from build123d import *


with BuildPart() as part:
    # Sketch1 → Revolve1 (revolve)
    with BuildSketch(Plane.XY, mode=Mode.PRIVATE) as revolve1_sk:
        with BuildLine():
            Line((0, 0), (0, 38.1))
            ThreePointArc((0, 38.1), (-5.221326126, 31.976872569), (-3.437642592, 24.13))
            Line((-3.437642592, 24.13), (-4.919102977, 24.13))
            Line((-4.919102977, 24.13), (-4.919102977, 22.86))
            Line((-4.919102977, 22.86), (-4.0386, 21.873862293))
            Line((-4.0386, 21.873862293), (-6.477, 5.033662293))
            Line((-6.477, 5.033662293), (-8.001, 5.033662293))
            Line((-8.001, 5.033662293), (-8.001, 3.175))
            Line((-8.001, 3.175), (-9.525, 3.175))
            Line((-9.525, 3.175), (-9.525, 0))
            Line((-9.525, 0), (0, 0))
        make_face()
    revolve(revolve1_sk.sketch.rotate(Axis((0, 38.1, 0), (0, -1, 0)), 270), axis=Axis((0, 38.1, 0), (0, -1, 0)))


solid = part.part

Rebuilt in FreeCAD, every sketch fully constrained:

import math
import FreeCAD as App
import Part
import Sketcher
from FreeCAD import Vector
Q = App.Units.Quantity

doc = App.newDocument("Part")
params = doc.addObject("Spreadsheet::Sheet", "Params")
for row, (alias, value) in enumerate([
    ("sketch1_height", "1.5 in"),
    ("sketch1_width", "0.06 in"),
    ("sketch1_height2", "0.05 in"),
    ("sketch1_width2", "0.375 in"),
    ("sketch1_height3", "0.125 in"),
    ("revolution_angle", "360 deg"),
], start=1):
    params.set(f"A{row}", alias)
    params.set(f"B{row}", "=" + value)
    params.setAlias(f"B{row}", alias)

body = doc.addObject("PartDesign::Body", "Body")

# Sketch on XY plane
sketch1 = body.newObject("Sketcher::SketchObject", "Sketch")
sketch1.AttachmentSupport = (doc.getObject("XY_Plane"), [""])
sketch1.MapMode = "FlatFace"
sketch1.addGeometry([
    Part.LineSegment(Vector(0, 0, 0), Vector(0, 38.1, 0)),  # 0
    Part.ArcOfCircle(Part.Circle(Vector(3.5, 29.8, 0), Vector(0, 0, 1), 9), math.radians(113), math.radians(219)),  # 1
    Part.LineSegment(Vector(-3.4, 24.1, 0), Vector(-4.9, 24.1, 0)),  # 2
    Part.LineSegment(Vector(-4.9, 24.1, 0), Vector(-4.9, 22.9, 0)),  # 3
    Part.LineSegment(Vector(-4.9, 22.9, 0), Vector(-4, 21.9, 0)),  # 4
    Part.LineSegment(Vector(-4, 21.9, 0), Vector(-6.5, 5, 0)),  # 5
    Part.LineSegment(Vector(-6.5, 5, 0), Vector(-8, 5, 0)),  # 6
    Part.LineSegment(Vector(-8, 5, 0), Vector(-8, 3.2, 0)),  # 7
    Part.LineSegment(Vector(-8, 3.2, 0), Vector(-9.5, 3.2, 0)),  # 8
    Part.LineSegment(Vector(-9.5, 3.2, 0), Vector(-9.5, 0, 0)),  # 9
    Part.LineSegment(Vector(-9.5, 0, 0), Vector(0, 0, 0)),  # 10
], False)
sketch1.addConstraint([
    Sketcher.Constraint("Coincident", 0, 2, 1, 1),
    Sketcher.Constraint("Coincident", 1, 2, 2, 1),
    Sketcher.Constraint("Coincident", 2, 2, 3, 1),
    Sketcher.Constraint("Coincident", 3, 2, 4, 1),
    Sketcher.Constraint("Coincident", 4, 2, 5, 1),
    Sketcher.Constraint("Coincident", 5, 2, 6, 1),
    Sketcher.Constraint("Coincident", 6, 2, 7, 1),
    Sketcher.Constraint("Coincident", 7, 2, 8, 1),
    Sketcher.Constraint("Coincident", 8, 2, 9, 1),
    Sketcher.Constraint("Coincident", 9, 2, 10, 1),
    Sketcher.Constraint("Coincident", 10, 2, 0, 1),
    Sketcher.Constraint("Vertical", 0),
    Sketcher.Constraint("Horizontal", 2),
    Sketcher.Constraint("Vertical", 3),
    Sketcher.Constraint("Horizontal", 6),
    Sketcher.Constraint("Vertical", 7),
    Sketcher.Constraint("Horizontal", 8),
    Sketcher.Constraint("Vertical", 9),
    Sketcher.Constraint("Horizontal", 10),
    Sketcher.Constraint("Coincident", 10, 2, -1, 1),
    Sketcher.Constraint("Equal", 6, 8),
    Sketcher.Constraint("DistanceY", 0, 1, 0, 2, Q("1.5 in")),
    Sketcher.Constraint("DistanceX", 6, 2, 6, 1, Q("0.06 in")),
    Sketcher.Constraint("DistanceY", 3, 2, 3, 1, Q("0.05 in")),
    Sketcher.Constraint("DistanceY", -1, 1, 3, 2, Q("0.9 in")),
    Sketcher.Constraint("DistanceX", 10, 1, 10, 2, Q("0.375 in")),
    Sketcher.Constraint("DistanceY", 9, 2, 9, 1, Q("0.125 in")),
    Sketcher.Constraint("DistanceX", 4, 2, -1, 1, Q("0.159 in")),
    Sketcher.Constraint("DistanceY", 5, 2, 4, 2, Q("0.663 in")),
    Sketcher.Constraint("Radius", 1, 8.976316),
    Sketcher.Constraint("DistanceX", 2, 2, 2, 1, 1.48146),
    Sketcher.Constraint("DistanceY", 7, 2, 7, 1, 1.858662),
    Sketcher.Constraint("Distance", 4, 1.322026),
])
sketch1.setExpression("Constraints[21]", "Params.sketch1_height")
sketch1.setExpression("Constraints[22]", "Params.sketch1_width")
sketch1.setExpression("Constraints[23]", "Params.sketch1_height2")
sketch1.setExpression("Constraints[25]", "Params.sketch1_width2")
sketch1.setExpression("Constraints[26]", "Params.sketch1_height3")
revolution = body.newObject("PartDesign::Revolution", "Revolution")
revolution.Profile = sketch1
revolution.ReferenceAxis = (sketch1, ["V_Axis"])
revolution.setExpression("Angle", "Params.revolution_angle")

doc.recompute()
